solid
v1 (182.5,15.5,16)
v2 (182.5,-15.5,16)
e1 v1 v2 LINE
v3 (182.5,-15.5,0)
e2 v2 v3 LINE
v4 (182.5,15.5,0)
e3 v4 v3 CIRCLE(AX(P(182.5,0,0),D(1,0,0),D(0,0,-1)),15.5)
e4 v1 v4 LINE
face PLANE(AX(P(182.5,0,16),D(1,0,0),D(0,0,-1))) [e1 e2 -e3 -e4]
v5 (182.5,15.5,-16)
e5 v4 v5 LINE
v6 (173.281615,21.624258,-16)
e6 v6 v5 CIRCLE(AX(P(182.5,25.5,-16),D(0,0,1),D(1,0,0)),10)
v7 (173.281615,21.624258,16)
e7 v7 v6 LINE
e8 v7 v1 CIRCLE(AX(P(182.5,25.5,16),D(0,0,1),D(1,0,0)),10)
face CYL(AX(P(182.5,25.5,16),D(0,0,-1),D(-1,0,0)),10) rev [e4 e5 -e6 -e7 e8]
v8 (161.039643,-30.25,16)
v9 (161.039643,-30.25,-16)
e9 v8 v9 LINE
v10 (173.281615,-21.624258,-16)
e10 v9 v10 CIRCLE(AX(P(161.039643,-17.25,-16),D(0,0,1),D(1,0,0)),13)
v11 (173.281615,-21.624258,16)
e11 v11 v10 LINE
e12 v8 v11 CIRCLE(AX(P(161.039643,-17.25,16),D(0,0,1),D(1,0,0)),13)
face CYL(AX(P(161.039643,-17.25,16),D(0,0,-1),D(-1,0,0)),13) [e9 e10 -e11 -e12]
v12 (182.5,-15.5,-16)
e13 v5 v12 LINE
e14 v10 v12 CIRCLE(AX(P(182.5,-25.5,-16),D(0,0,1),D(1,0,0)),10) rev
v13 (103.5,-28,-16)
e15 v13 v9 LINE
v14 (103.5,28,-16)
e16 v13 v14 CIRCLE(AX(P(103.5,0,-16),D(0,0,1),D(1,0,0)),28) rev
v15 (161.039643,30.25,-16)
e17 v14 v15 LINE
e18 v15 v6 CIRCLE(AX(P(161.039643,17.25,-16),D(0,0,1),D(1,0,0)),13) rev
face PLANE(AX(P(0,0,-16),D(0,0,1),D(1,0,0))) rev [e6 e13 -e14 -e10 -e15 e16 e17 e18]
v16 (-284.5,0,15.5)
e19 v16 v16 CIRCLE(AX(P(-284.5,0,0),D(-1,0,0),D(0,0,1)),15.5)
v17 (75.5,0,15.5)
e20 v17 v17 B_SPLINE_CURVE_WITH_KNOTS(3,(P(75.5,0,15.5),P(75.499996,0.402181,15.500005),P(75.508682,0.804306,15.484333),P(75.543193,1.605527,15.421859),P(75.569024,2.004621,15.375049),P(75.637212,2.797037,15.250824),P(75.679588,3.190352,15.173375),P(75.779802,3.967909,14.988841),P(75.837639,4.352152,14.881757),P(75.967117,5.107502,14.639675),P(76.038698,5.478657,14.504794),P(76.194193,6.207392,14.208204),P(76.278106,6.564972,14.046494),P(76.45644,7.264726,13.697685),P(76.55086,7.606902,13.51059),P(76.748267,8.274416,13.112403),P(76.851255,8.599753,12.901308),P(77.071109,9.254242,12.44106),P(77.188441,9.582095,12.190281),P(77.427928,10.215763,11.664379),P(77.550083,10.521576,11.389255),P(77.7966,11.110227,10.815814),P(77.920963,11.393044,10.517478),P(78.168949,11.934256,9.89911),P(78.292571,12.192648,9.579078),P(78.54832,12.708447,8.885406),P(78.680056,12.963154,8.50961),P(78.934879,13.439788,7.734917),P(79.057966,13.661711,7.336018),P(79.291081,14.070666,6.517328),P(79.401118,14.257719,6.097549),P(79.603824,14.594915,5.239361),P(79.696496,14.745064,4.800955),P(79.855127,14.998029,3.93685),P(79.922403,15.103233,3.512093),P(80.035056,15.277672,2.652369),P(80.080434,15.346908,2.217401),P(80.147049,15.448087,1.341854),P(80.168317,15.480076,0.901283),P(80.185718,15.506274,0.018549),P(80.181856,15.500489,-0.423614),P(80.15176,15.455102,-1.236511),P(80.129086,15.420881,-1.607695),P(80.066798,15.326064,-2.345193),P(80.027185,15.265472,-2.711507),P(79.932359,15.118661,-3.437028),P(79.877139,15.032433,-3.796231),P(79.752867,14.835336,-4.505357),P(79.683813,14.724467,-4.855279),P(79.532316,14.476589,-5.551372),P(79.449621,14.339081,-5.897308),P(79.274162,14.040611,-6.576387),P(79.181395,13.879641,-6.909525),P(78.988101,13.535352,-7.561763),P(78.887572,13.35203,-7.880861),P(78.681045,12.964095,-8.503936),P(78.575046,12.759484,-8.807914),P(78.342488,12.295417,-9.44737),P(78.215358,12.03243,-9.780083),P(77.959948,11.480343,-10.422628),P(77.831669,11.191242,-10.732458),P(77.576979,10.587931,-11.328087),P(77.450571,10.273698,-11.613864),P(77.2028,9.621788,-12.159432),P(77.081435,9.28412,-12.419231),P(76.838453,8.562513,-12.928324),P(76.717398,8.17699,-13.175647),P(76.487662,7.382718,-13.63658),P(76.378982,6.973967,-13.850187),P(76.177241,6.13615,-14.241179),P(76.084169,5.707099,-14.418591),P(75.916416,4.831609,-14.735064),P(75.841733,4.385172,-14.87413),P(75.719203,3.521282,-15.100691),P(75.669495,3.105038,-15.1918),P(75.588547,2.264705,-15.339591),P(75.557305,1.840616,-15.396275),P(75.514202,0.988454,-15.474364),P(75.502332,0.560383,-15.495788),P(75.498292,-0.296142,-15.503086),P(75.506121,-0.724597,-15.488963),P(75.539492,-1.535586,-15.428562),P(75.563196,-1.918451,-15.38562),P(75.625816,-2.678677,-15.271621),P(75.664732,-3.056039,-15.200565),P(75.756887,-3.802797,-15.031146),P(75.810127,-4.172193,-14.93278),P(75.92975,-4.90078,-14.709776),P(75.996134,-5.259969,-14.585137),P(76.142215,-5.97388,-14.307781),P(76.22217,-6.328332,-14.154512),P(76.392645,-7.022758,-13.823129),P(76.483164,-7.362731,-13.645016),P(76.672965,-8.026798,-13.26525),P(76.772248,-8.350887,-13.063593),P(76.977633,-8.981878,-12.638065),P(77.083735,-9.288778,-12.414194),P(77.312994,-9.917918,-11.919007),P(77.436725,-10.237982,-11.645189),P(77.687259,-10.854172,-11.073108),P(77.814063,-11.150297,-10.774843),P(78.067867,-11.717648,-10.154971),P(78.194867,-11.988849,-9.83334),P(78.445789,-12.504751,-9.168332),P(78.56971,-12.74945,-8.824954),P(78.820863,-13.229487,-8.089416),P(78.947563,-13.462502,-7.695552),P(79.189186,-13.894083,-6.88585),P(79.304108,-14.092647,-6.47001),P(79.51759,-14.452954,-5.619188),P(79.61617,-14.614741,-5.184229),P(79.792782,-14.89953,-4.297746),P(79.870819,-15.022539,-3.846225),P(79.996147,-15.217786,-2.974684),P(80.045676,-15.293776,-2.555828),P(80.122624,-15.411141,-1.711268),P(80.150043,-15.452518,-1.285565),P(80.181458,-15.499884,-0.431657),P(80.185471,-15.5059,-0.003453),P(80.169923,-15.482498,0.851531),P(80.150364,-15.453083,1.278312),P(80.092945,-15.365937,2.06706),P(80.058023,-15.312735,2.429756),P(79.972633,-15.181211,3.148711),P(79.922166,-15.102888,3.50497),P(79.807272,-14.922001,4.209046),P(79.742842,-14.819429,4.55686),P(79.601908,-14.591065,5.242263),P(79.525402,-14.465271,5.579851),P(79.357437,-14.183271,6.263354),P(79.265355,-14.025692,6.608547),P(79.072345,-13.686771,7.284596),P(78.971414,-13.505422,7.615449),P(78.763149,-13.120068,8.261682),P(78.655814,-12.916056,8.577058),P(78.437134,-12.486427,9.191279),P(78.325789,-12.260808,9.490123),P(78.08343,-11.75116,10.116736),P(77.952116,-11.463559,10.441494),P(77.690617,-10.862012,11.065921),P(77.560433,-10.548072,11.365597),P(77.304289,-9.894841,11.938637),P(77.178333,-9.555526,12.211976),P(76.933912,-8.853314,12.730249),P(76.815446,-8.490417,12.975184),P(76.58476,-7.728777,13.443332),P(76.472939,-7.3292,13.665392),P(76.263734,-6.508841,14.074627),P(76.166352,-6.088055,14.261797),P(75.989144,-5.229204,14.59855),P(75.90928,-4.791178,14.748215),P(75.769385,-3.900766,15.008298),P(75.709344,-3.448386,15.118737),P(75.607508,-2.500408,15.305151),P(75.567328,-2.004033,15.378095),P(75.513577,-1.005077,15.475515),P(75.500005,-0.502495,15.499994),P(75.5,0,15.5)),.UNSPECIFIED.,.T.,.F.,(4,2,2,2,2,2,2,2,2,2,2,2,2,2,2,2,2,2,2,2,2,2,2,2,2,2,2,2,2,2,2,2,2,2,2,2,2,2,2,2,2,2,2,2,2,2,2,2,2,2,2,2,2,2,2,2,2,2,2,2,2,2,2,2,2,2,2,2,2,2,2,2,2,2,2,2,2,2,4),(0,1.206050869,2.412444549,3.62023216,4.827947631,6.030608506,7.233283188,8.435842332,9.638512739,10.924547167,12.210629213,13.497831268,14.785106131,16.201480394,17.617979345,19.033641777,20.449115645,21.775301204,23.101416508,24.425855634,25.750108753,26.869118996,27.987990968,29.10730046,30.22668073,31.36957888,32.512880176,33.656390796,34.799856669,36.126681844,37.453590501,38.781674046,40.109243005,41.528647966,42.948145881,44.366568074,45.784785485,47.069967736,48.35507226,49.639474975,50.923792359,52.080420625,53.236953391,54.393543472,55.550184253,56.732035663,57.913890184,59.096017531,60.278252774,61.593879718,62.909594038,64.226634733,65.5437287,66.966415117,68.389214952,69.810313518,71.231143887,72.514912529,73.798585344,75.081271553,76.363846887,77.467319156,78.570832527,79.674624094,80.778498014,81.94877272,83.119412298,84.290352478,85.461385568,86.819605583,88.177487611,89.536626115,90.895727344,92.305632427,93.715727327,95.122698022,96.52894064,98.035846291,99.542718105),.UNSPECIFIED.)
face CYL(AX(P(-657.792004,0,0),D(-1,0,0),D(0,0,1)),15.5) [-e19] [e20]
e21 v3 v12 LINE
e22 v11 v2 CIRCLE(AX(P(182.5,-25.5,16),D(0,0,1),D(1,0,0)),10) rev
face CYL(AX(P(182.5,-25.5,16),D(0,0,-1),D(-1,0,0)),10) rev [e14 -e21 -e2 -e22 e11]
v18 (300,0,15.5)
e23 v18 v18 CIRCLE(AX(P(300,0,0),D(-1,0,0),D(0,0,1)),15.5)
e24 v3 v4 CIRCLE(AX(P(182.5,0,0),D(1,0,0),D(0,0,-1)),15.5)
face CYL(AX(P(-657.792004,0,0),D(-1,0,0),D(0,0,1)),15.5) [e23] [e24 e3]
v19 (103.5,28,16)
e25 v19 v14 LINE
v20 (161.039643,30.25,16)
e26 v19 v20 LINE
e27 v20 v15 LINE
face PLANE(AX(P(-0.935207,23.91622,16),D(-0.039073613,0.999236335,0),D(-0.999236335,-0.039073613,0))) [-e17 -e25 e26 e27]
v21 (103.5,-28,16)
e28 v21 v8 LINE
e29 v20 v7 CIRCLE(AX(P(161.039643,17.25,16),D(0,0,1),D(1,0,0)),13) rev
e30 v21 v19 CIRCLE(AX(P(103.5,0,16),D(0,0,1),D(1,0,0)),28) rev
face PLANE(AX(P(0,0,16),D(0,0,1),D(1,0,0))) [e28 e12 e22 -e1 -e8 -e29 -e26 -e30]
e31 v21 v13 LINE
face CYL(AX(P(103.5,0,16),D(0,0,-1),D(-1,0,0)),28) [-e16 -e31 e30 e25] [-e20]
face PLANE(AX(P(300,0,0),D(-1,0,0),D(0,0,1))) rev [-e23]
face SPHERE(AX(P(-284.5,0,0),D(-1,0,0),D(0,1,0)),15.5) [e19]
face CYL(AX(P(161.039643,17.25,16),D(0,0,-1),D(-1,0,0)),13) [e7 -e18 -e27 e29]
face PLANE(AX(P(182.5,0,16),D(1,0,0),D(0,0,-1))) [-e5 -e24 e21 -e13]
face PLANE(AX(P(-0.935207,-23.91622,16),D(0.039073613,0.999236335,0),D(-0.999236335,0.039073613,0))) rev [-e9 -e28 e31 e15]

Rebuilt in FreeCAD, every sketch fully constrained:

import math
import FreeCAD as App
import Part
import Sketcher

doc = App.newDocument("Part")
body = doc.addObject("PartDesign::Body", "Body")

# Sketch on XY plane
sketch1 = doc.addObject("Sketcher::SketchObject", "Sketch")
body.addObject(sketch1)
sketch1.AttachmentSupport = (doc.XY_Plane, [""])
sketch1.MapMode = "FlatFace"
sketch1.addGeometry([
    Part.LineSegment(App.Vector(-300, 0, 0), App.Vector(300, 0, 0)),
    Part.LineSegment(App.Vector(300, 0, 0), App.Vector(300, 16, 0)),
    Part.LineSegment(App.Vector(300, 16, 0), App.Vector(-284, 16, 0)),
    Part.ArcOfCircle(Part.Circle(App.Vector(-284, 0, 0), App.Vector(0, 0, 1), 16), math.radians(90), math.radians(180)),
], False)
sketch1.addConstraint([
    Sketcher.Constraint("Coincident", 0, 2, 1, 1),
    Sketcher.Constraint("Coincident", 1, 2, 2, 1),
    Sketcher.Constraint("Tangent", 2, 2, 3, 1),
    Sketcher.Constraint("Coincident", 3, 2, 0, 1),
    Sketcher.Constraint("Horizontal", 0),
    Sketcher.Constraint("Vertical", 1),
    Sketcher.Constraint("Horizontal", 2),
    Sketcher.Constraint("Symmetric", 0, 2, 3, 2, -1, 1),
    Sketcher.Constraint("PointOnObject", 3, 3, -1),
    Sketcher.Constraint("Radius", 3, 15.5),
    Sketcher.Constraint("DistanceX", 0, 1, 0, 2, 600.0),
])
revolution = doc.addObject("PartDesign::Revolution", "Revolution")
body.addObject(revolution)
revolution.Profile = sketch1
revolution.ReferenceAxis = (sketch1, ["H_Axis"])
revolution.Angle = 360

# Sketch on XY plane
sketch2 = doc.addObject("Sketcher::SketchObject", "Sketch001")
body.addObject(sketch2)
sketch2.AttachmentSupport = (doc.XY_Plane, [""])
sketch2.MapMode = "FlatFace"
sketch2.addGeometry([
    Part.ArcOfCircle(Part.Circle(App.Vector(104, 0, 0), App.Vector(0, 0, 1), 28), math.radians(90), math.radians(214)),  # 0
    Part.ArcOfCircle(Part.Circle(App.Vector(103, 0, 0), App.Vector(0, 0, 1), 28), math.radians(-146), math.radians(-90)),  # 1
    Part.LineSegment(App.Vector(104, -28, 0), App.Vector(161, -30, 0)),  # 2
    Part.ArcOfCircle(Part.Circle(App.Vector(161, -17, 0), App.Vector(0, 0, 1), 13), math.radians(-90), math.radians(-20)),  # 3
    Part.ArcOfCircle(Part.Circle(App.Vector(182, -25, 0), App.Vector(0, 0, 1), 10), math.radians(90), math.radians(157)),  # 4
    Part.LineSegment(App.Vector(182, -16, 0), App.Vector(182, 16, 0)),  # 5
    Part.ArcOfCircle(Part.Circle(App.Vector(182, 25, 0), App.Vector(0, 0, 1), 10), math.radians(-157), math.radians(-90)),  # 6
    Part.ArcOfCircle(Part.Circle(App.Vector(161, 17, 0), App.Vector(0, 0, 1), 13), math.radians(20), math.radians(90)),  # 7
    Part.LineSegment(App.Vector(161, 30, 0), App.Vector(104, 28, 0)),  # 8
], False)
sketch2.addConstraint([
    Sketcher.Constraint("Tangent", 0, 2, 1, 1),
    Sketcher.Constraint("Coincident", 1, 2, 2, 1),
    Sketcher.Constraint("Coincident", 2, 2, 3, 1),
    Sketcher.Constraint("Coincident", 3, 2, 4, 2),
    Sketcher.Constraint("Coincident", 4, 1, 5, 1),
    Sketcher.Constraint("Coincident", 5, 2, 6, 2),
    Sketcher.Constraint("Coincident", 6, 1, 7, 1),
    Sketcher.Constraint("Coincident", 7, 2, 8, 1),
    Sketcher.Constraint("Coincident", 8, 2, 0, 1),
    Sketcher.Constraint("Vertical", 5),
    Sketcher.Constraint("Equal", 0, 1),
    Sketcher.Constraint("Equal", 4, 6),
    Sketcher.Constraint("Equal", 3, 7),
    Sketcher.Constraint("Symmetric", 4, 3, 6, 3, -1),
    Sketcher.Constraint("Symmetric", 3, 3, 7, 3, -1),
    Sketcher.Constraint("Symmetric", 1, 2, 8, 2, -1),
    Sketcher.Constraint("Horizontal", 0, 2, 4, 1),
    Sketcher.Constraint("Vertical", 0, 3, 1, 2),
    Sketcher.Constraint("Vertical", 7, 3, 2, 2),
    Sketcher.Constraint("Vertical", 6, 3, 4, 1),
    Sketcher.Constraint("Vertical", 2, 2, 7, 2),
    Sketcher.Constraint("Radius", 0, 28.0),
    Sketcher.Constraint("Radius", 3, 13.0),
    Sketcher.Constraint("Radius", 4, 10.0),
    Sketcher.Constraint("DistanceY", 5, 1, 5, 2, 31.0),
    Sketcher.Constraint("DistanceX", 0, 3, 4, 3, 79.0),
    Sketcher.Constraint("DistanceX", -1, 1, 0, 3, 103.5),
    Sketcher.Constraint("DistanceY", 3, 3, 7, 3, 34.5),
    Sketcher.Constraint("DistanceX", 0, 2, 3, 3, 80.858091),
])
pad1 = doc.addObject("PartDesign::Pad", "Pad")
body.addObject(pad1)
pad1.Profile = sketch2
pad1.Length = 32
pad1.Midplane = True

doc.recompute()
